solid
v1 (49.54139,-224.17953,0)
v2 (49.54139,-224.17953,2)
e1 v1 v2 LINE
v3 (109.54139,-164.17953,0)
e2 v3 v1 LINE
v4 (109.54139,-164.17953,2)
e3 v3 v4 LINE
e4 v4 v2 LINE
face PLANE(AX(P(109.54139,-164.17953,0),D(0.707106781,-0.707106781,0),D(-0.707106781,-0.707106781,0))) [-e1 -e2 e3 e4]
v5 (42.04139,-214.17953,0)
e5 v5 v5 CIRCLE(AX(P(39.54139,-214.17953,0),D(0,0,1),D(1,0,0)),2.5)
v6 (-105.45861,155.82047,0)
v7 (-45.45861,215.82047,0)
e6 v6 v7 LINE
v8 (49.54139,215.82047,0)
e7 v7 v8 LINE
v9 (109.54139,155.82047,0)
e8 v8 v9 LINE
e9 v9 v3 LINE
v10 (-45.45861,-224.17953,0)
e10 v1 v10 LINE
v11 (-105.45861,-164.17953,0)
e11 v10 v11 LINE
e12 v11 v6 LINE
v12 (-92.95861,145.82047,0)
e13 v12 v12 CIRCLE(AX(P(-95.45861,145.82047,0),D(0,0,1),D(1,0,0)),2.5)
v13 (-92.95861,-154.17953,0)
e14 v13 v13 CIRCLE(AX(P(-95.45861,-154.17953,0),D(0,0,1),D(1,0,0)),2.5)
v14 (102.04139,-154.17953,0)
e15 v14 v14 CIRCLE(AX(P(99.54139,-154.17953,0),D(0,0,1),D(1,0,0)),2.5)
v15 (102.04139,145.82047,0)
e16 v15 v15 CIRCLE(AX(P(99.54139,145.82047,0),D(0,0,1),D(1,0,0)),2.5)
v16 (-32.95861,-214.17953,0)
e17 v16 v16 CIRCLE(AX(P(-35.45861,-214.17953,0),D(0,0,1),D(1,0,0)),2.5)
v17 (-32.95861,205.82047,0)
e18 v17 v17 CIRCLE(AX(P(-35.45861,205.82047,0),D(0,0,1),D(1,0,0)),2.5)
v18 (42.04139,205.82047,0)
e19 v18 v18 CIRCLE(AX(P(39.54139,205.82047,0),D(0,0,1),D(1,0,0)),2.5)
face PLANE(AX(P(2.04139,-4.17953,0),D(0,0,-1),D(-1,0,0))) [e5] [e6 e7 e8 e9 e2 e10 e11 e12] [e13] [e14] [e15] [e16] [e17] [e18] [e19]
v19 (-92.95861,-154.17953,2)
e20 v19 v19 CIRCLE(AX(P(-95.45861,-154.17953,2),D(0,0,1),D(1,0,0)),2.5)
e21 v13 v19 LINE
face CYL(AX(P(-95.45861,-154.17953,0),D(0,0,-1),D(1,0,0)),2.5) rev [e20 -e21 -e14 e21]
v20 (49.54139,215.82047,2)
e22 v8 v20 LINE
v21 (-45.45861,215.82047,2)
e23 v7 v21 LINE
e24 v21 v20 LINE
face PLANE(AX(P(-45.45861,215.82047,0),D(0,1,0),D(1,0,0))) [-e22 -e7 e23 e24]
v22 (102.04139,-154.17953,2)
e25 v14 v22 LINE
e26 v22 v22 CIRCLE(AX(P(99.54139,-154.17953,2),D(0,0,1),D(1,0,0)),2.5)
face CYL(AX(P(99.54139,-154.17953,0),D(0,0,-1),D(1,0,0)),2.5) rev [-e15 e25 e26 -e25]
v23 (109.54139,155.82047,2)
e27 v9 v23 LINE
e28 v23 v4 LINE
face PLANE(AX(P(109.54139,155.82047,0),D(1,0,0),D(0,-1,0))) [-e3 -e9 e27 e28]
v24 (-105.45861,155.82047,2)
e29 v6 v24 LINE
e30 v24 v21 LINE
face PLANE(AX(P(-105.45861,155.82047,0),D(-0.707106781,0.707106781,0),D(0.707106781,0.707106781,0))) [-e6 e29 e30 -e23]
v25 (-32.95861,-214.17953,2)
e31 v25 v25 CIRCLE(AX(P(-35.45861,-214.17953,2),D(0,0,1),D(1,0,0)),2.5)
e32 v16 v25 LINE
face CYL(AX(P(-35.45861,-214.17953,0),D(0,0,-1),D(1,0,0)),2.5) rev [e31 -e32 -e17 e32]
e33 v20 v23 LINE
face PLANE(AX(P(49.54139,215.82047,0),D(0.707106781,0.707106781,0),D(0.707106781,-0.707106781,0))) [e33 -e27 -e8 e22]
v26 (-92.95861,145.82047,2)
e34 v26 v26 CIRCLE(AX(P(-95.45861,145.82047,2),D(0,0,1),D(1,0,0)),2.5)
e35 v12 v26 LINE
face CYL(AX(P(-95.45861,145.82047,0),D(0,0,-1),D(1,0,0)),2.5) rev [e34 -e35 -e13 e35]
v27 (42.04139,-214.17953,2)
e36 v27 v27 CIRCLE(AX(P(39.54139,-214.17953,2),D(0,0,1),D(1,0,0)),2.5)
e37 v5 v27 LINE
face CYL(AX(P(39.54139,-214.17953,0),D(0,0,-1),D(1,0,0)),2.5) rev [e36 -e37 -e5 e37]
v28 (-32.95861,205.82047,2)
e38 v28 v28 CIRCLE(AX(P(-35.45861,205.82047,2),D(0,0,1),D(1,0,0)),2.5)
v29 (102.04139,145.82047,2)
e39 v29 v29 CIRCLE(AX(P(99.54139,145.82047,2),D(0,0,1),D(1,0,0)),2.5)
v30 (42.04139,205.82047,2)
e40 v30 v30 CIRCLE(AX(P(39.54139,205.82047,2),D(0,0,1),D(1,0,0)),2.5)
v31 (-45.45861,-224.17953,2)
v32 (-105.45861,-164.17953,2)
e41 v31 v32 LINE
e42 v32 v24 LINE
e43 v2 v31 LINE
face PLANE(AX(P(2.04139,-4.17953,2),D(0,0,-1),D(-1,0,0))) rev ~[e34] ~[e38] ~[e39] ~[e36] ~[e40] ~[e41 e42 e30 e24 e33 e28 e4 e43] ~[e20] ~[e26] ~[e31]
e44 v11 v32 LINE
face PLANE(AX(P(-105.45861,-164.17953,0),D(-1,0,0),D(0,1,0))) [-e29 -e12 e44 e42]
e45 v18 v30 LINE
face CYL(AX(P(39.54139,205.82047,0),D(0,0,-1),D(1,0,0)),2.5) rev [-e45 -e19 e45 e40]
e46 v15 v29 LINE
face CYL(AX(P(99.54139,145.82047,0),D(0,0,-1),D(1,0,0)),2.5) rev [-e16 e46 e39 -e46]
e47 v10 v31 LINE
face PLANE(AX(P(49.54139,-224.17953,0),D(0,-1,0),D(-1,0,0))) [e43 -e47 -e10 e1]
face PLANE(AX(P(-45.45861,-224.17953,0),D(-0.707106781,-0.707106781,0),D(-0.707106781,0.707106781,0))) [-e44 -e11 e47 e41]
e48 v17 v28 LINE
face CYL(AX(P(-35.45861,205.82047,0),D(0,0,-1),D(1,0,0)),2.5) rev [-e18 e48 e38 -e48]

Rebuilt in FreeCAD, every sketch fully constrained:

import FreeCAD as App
import Part
import Sketcher
from FreeCAD import Vector
Q = App.Units.Quantity

doc = App.newDocument("Part")
body = doc.addObject("PartDesign::Body", "Body")

sketch1 = body.newObject("Sketcher::SketchObject", "Sketch")
sketch1.AttachmentSupport = (doc.getObject("XY_Plane"), [""])
sketch1.MapMode = "FlatFace"
sketch1.addGeometry([
    Part.LineSegment(Vector(49.5, 215.8, 0), Vector(-45.5, 215.8, 0)),
    Part.LineSegment(Vector(-45.5, 215.8, 0), Vector(-105.5, 155.8, 0)),
    Part.LineSegment(Vector(-105.5, 155.8, 0), Vector(-105.5, -164.2, 0)),
    Part.LineSegment(Vector(-105.5, -164.2, 0), Vector(-45.5, -224.2, 0)),
    Part.LineSegment(Vector(-45.5, -224.2, 0), Vector(49.5, -224.2, 0)),
    Part.LineSegment(Vector(49.5, -224.2, 0), Vector(109.5, -164.2, 0)),
    Part.LineSegment(Vector(109.5, -164.2, 0), Vector(109.5, 155.8, 0)),
    Part.LineSegment(Vector(109.5, 155.8, 0), Vector(49.5, 215.8, 0)),
    Part.Circle(Vector(99.5, -154.2, 0), Vector(0, 0, 1), 2.5),
    Part.Circle(Vector(39.5, -214.2, 0), Vector(0, 0, 1), 2.5),
    Part.Circle(Vector(-35.5, -214.2, 0), Vector(0, 0, 1), 2.5),
    Part.Circle(Vector(-95.5, -154.2, 0), Vector(0, 0, 1), 2.5),
    Part.Circle(Vector(99.5, 145.8, 0), Vector(0, 0, 1), 2.5),
    Part.Circle(Vector(39.5, 205.8, 0), Vector(0, 0, 1), 2.5),
    Part.Circle(Vector(-35.5, 205.8, 0), Vector(0, 0, 1), 2.5),
    Part.Circle(Vector(-95.5, 145.8, 0), Vector(0, 0, 1), 2.5),
], False)
sketch1.addConstraint([
    Sketcher.Constraint("Coincident", 0, 2, 1, 1),
    Sketcher.Constraint("Coincident", 1, 2, 2, 1),
    Sketcher.Constraint("Coincident", 2, 2, 3, 1),
    Sketcher.Constraint("Coincident", 3, 2, 4, 1),
    Sketcher.Constraint("Coincident", 4, 2, 5, 1),
    Sketcher.Constraint("Coincident", 5, 2, 6, 1),
    Sketcher.Constraint("Coincident", 6, 2, 7, 1),
    Sketcher.Constraint("Coincident", 7, 2, 0, 1),
    Sketcher.Constraint("Horizontal", 0),
    Sketcher.Constraint("Vertical", 2),
    Sketcher.Constraint("Horizontal", 4),
    Sketcher.Constraint("Vertical", 6),
    Sketcher.Constraint("Equal", 8, 9),
    Sketcher.Constraint("Equal", 9, 10),
    Sketcher.Constraint("Equal", 10, 11),
    Sketcher.Constraint("Equal", 11, 12),
    Sketcher.Constraint("Equal", 12, 13),
    Sketcher.Constraint("Equal", 13, 14),
    Sketcher.Constraint("Equal", 14, 15),
    Sketcher.Constraint("Perpendicular", 1, 3),
    Sketcher.Constraint("Perpendicular", 3, 5),
    Sketcher.Constraint("Perpendicular", 5, 7),
    Sketcher.Constraint("Horizontal", 9, 3, 10, 3),
    Sketcher.Constraint("Horizontal", 8, 3, 11, 3),
    Sketcher.Constraint("Horizontal", 13, 3, 14, 3),
    Sketcher.Constraint("Horizontal", 12, 3, 15, 3),
    Sketcher.Constraint("Horizontal", 2, 2, 5, 2),
    Sketcher.Constraint("Horizontal", 1, 2, 6, 2),
    Sketcher.Constraint("Vertical", 8, 3, 12, 3),
    Sketcher.Constraint("Vertical", 9, 3, 13, 3),
    Sketcher.Constraint("Vertical", 10, 3, 14, 3),
    Sketcher.Constraint("Vertical", 11, 3, 15, 3),
    Sketcher.Constraint("Vertical", 0, 2, 3, 2),
    Sketcher.Constraint("Vertical", 4, 2, 7, 2),
    Sketcher.Constraint("Diameter", 8, Q("5 mm")),
    Sketcher.Constraint("DistanceX", 0, 2, 0, 1, Q("95 mm")),
    Sketcher.Constraint("DistanceY", 2, 2, 2, 1, Q("320 mm")),
    Sketcher.Constraint("DistanceX", 9, 3, 8, 3, Q("60 mm")),
    Sketcher.Constraint("DistanceY", 9, 3, 8, 3, Q("60 mm")),
    Sketcher.Constraint("DistanceX", 10, 3, 9, 3, Q("75 mm")),
    Sketcher.Constraint("DistanceX", 11, 3, 10, 3, Q("60 mm")),
    Sketcher.Constraint("DistanceY", 8, 3, 12, 3, Q("300 mm")),
    Sketcher.Constraint("DistanceY", 12, 3, 13, 3, Q("60 mm")),
    Sketcher.Constraint("DistanceX", 0, 2, 14, 3, Q("10 mm")),
    Sketcher.Constraint("DistanceY", 14, 3, 0, 2, Q("10 mm")),
    Sketcher.Constraint("DistanceX", 1, 2, 15, 3, Q("10 mm")),
    Sketcher.Constraint("DistanceX", -1, 1, 8, 3, Q("99.54139 mm")),
    Sketcher.Constraint("DistanceY", 8, 3, -1, 1, Q("154.17953 mm")),
])
pad1 = body.newObject("PartDesign::Pad", "Pad")
pad1.Profile = sketch1
pad1.Length = 2

doc.recompute()
